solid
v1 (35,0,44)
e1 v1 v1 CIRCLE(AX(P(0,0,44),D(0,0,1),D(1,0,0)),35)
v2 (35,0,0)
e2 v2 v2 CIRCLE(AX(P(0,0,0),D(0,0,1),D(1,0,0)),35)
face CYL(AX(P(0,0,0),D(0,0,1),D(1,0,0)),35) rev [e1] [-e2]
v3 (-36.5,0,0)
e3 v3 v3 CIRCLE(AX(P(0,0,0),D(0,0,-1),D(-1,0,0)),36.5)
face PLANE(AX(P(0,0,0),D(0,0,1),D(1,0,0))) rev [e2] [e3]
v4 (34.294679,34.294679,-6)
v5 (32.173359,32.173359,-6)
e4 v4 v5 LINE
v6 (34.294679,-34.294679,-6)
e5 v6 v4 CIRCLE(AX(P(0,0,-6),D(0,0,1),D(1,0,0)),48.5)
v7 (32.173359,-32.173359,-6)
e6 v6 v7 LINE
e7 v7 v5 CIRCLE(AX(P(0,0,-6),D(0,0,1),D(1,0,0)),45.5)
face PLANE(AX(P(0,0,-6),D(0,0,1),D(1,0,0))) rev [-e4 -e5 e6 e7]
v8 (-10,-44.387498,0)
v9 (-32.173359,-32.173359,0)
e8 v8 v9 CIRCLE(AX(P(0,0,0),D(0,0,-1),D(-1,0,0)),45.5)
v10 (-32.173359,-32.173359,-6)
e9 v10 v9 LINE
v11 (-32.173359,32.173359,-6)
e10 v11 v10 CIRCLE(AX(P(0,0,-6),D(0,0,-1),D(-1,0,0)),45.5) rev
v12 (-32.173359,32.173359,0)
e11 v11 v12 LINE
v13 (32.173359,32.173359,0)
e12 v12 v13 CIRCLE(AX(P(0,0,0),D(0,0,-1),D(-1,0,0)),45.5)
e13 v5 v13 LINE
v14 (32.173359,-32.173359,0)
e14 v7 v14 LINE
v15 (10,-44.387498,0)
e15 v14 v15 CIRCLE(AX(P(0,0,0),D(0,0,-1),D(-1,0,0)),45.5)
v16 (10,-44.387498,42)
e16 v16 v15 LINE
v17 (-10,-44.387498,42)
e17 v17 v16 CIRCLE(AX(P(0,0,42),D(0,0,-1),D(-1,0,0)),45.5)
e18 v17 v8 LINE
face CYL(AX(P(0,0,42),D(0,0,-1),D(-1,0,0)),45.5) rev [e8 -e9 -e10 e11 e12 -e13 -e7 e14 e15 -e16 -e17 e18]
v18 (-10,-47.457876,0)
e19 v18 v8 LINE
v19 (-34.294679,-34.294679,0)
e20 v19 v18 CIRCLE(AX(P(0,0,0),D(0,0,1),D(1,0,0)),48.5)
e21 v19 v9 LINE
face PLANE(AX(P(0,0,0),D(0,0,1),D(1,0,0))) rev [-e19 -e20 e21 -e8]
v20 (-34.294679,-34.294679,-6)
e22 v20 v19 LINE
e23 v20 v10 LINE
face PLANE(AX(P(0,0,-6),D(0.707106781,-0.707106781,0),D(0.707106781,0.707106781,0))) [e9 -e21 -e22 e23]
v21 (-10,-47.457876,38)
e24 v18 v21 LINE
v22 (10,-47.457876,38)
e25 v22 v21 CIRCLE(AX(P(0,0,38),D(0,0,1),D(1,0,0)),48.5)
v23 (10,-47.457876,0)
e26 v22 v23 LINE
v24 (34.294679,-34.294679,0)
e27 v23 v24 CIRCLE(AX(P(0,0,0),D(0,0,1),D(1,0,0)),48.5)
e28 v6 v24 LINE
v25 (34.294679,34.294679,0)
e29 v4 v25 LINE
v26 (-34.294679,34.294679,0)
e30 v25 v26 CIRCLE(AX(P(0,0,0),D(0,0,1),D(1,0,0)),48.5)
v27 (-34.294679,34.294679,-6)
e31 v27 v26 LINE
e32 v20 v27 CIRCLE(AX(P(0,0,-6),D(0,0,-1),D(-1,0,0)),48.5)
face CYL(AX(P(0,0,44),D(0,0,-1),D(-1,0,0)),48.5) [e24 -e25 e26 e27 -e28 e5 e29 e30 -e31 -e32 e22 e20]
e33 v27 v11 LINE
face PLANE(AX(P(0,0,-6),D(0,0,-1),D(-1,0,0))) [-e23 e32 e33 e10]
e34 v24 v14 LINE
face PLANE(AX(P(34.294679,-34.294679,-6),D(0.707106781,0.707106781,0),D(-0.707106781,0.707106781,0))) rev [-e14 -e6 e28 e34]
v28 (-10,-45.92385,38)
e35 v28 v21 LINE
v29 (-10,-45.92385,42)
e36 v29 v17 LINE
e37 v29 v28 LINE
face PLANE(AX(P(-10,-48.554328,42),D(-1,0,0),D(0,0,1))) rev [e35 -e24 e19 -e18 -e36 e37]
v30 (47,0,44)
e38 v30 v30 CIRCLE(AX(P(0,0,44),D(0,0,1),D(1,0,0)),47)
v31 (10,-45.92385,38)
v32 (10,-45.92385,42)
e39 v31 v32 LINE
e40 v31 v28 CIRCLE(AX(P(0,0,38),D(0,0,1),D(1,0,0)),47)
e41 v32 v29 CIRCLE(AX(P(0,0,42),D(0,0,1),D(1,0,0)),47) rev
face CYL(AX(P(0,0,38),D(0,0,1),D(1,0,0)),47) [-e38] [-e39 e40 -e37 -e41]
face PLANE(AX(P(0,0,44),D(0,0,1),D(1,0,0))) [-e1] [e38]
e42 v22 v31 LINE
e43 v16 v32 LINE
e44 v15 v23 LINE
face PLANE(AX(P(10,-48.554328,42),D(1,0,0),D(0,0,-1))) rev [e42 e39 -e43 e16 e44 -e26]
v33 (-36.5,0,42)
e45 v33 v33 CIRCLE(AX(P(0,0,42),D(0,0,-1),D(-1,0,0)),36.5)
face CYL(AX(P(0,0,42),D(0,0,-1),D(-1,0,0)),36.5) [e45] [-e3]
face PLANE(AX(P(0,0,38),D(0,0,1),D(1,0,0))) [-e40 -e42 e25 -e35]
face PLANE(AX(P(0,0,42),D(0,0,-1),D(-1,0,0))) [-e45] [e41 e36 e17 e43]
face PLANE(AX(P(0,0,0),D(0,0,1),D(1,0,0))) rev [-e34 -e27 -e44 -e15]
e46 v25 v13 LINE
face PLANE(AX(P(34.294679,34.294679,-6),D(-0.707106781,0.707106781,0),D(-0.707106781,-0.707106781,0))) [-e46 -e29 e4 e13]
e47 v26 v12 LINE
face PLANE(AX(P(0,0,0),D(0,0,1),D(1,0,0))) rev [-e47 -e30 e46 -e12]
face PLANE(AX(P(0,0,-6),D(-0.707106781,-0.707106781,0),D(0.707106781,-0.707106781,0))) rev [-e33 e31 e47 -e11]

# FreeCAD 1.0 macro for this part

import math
import FreeCAD as App
import Part
import Sketcher
Q = App.Units.Quantity


def add_polygon(sketch, points):
    """Adds a closed chain of lines whose ends are joined by coincident constraints."""
    first, n = sketch.GeometryCount, len(points)
    for a, b in zip(points, points[1:] + points[:1]):
        sketch.addGeometry(Part.LineSegment(App.Vector(*a, 0), App.Vector(*b, 0)), False)
    for i in range(n):
        sketch.addConstraint(Sketcher.Constraint("Coincident", first + i, 2, first + (i + 1) % n, 1))

doc = App.newDocument("Part")
body = doc.addObject("PartDesign::Body", "Body")

# Sketch on XY plane
sketch1 = doc.addObject("Sketcher::SketchObject", "Sketch")
body.addObject(sketch1)
sketch1.AttachmentSupport = (doc.XY_Plane, [""])
sketch1.MapMode = "FlatFace"
sketch1.addGeometry(Part.Circle(App.Vector(0, 0, 0), App.Vector(0, 0, 1), 48), False)
sketch1.addConstraint([
    Sketcher.Constraint("Coincident", 0, 3, -1, 1),
    Sketcher.Constraint("Diameter", 0, Q("97 mm")),
])
pad1 = doc.addObject("PartDesign::Pad", "Pad")
body.addObject(pad1)
pad1.Profile = sketch1
pad1.Length = 44

# Sketch on XY plane
sketch2 = doc.addObject("Sketcher::SketchObject", "Sketch001")
body.addObject(sketch2)
sketch2.AttachmentSupport = (doc.XY_Plane, [""])
sketch2.MapMode = "FlatFace"
sketch2.AttachmentOffset = App.Placement(App.Vector(0, 0, 44), App.Rotation())
sketch2.addGeometry([
    Part.Circle(App.Vector(0, 0, 0), App.Vector(0, 0, 1), 48),
    Part.Circle(App.Vector(0, 0, 0), App.Vector(0, 0, 1), 47),
], False)
sketch2.addConstraint([
    Sketcher.Constraint("Coincident", 0, 3, -1, 1),
    Sketcher.Constraint("Coincident", 1, 3, -1, 1),
    Sketcher.Constraint("Diameter", 0, Q("97 mm")),
    Sketcher.Constraint("Diameter", 1, Q("94 mm")),
])
pocket1 = doc.addObject("PartDesign::Pocket", "Pocket")
body.addObject(pocket1)
pocket1.Profile = sketch2
pocket1.Length = 6

# Sketch on XY plane
sketch3 = doc.addObject("Sketcher::SketchObject", "Sketch002")
body.addObject(sketch3)
sketch3.AttachmentSupport = (doc.XY_Plane, [""])
sketch3.MapMode = "FlatFace"
sketch3.AttachmentOffset = App.Placement(App.Vector(0, 0, 44), App.Rotation())
sketch3.addGeometry(Part.Circle(App.Vector(0, 0, 0), App.Vector(0, 0, 1), 35), False)
sketch3.addConstraint([
    Sketcher.Constraint("Coincident", 0, 3, -1, 1),
    Sketcher.Constraint("Diameter", 0, Q("70 mm")),
])
pocket2 = doc.addObject("PartDesign::Pocket", "Pocket001")
body.addObject(pocket2)
pocket2.Profile = sketch3
pocket2.Type = "ThroughAll"

# Sketch on XY plane
sketch4 = doc.addObject("Sketcher::SketchObject", "Sketch003")
body.addObject(sketch4)
sketch4.AttachmentSupport = (doc.XY_Plane, [""])
sketch4.MapMode = "FlatFace"
sketch4.addGeometry([
    Part.Circle(App.Vector(0, 0, 0), App.Vector(0, 0, 1), 46),
    Part.Circle(App.Vector(0, 0, 0), App.Vector(0, 0, 1), 36),
], False)
sketch4.addConstraint([
    Sketcher.Constraint("Coincident", 0, 3, -1, 1),
    Sketcher.Constraint("Coincident", 1, 3, -1, 1),
    Sketcher.Constraint("Diameter", 0, Q("91 mm")),
    Sketcher.Constraint("Diameter", 1, Q("73 mm")),
])
pocket3 = doc.addObject("PartDesign::Pocket", "Pocket002")
body.addObject(pocket3)
pocket3.Profile = sketch4
pocket3.Length = 42
pocket3.Reversed = True

# Sketch on XY plane
sketch5 = doc.addObject("Sketcher::SketchObject", "Sketch004")
body.addObject(sketch5)
sketch5.AttachmentSupport = (doc.XY_Plane, [""])
sketch5.MapMode = "FlatFace"
add_polygon(sketch5, [(10, -44.4), (10, -48.6), (-10, -48.6), (-10, -44.4)])  # lines 0-3
sketch5.addConstraint([
    Sketcher.Constraint("Vertical", 0),
    Sketcher.Constraint("Horizontal", 1),
    Sketcher.Constraint("Vertical", 2),
    Sketcher.Constraint("Horizontal", 3),
    Sketcher.Constraint("DistanceX", 1, 2, 1, 1, Q("20 mm")),
    Sketcher.Constraint("DistanceX", -1, 1, 0, 2, Q("10 mm")),
    Sketcher.Constraint("DistanceY", 0, 2, 0, 1, Q("4.16683 mm")),
    Sketcher.Constraint("DistanceY", 2, 2, -1, 1, Q("44.387498 mm")),
])
pocket4 = doc.addObject("PartDesign::Pocket", "Pocket003")
body.addObject(pocket4)
pocket4.Profile = sketch5
pocket4.Length = 42
pocket4.Reversed = True

# Sketch on XY plane
sketch6 = doc.addObject("Sketcher::SketchObject", "Sketch005")
body.addObject(sketch6)
sketch6.AttachmentSupport = (doc.XY_Plane, [""])
sketch6.MapMode = "FlatFace"
sketch6.addGeometry([
    Part.ArcOfCircle(Part.Circle(App.Vector(0, 0, 0), App.Vector(0, 0, 1), 48.5), math.radians(135), math.radians(225)),  # 0
    Part.LineSegment(App.Vector(-34.3, 34.3, 0), App.Vector(-32.2, 32.2, 0)),  # 1
    Part.ArcOfCircle(Part.Circle(App.Vector(0, 0, 0), App.Vector(0, 0, 1), 45.5), math.radians(135), math.radians(225)),  # 2
    Part.LineSegment(App.Vector(-32.2, -32.2, 0), App.Vector(-34.3, -34.3, 0)),  # 3
    Part.ArcOfCircle(Part.Circle(App.Vector(0, 0, 0), App.Vector(0, 0, 1), 48.5), math.radians(-45), math.radians(45)),  # 4
    Part.LineSegment(App.Vector(34.3, -34.3, 0), App.Vector(32.2, -32.2, 0)),  # 5
    Part.ArcOfCircle(Part.Circle(App.Vector(0, 0, 0), App.Vector(0, 0, 1), 45.5), math.radians(-45), math.radians(45)),  # 6
    Part.LineSegment(App.Vector(32.2, 32.2, 0), App.Vector(34.3, 34.3, 0)),  # 7
], False)
sketch6.addConstraint([
    Sketcher.Constraint("Coincident", 0, 1, 1, 1),
    Sketcher.Constraint("Coincident", 1, 2, 2, 1),
    Sketcher.Constraint("Coincident", 2, 2, 3, 1),
    Sketcher.Constraint("Coincident", 3, 2, 0, 2),
    Sketcher.Constraint("Coincident", 4, 1, 5, 1),
    Sketcher.Constraint("Coincident", 5, 2, 6, 1),
    Sketcher.Constraint("Coincident", 6, 2, 7, 1),
    Sketcher.Constraint("Coincident", 7, 2, 4, 2),
    Sketcher.Constraint("Coincident", 0, 3, -1, 1),
    Sketcher.Constraint("Coincident", 2, 3, -1, 1),
    Sketcher.Constraint("Coincident", 4, 3, -1, 1),
    Sketcher.Constraint("Coincident", 6, 3, -1, 1),
    Sketcher.Constraint("Equal", 0, 4),
    Sketcher.Constraint("Equal", 2, 6),
    Sketcher.Constraint("Perpendicular", 1, 3),
    Sketcher.Constraint("Perpendicular", 3, 5),
    Sketcher.Constraint("Perpendicular", 5, 7),
    Sketcher.Constraint("Horizontal", 3, 2, 4, 1),
    Sketcher.Constraint("Horizontal", 2, 2, 5, 2),
    Sketcher.Constraint("Horizontal", 1, 2, 6, 2),
    Sketcher.Constraint("Vertical", 1, 2, 2, 2),
    Sketcher.Constraint("Radius", 0, Q("48.5 mm")),
    Sketcher.Constraint("Radius", 2, Q("45.5 mm")),
    Sketcher.Constraint("DistanceX", 0, 1, -1, 1, Q("34.294679 mm")),
])
pad2 = doc.addObject("PartDesign::Pad", "Pad001")
body.addObject(pad2)
pad2.Profile = sketch6
pad2.Length = 6
pad2.Reversed = True

doc.recompute()
